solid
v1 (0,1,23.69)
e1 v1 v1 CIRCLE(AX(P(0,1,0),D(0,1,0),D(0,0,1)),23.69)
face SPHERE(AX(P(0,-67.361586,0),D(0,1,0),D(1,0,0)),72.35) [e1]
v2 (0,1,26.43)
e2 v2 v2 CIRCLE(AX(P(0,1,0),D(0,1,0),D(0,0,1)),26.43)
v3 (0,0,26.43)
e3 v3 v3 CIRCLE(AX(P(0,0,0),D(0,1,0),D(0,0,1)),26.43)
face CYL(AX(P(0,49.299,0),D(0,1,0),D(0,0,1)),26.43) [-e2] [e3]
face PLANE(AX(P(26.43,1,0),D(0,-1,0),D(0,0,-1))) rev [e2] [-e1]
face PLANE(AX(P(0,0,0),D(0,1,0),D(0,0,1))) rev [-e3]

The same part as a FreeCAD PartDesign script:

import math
import FreeCAD as App
import Part
import Sketcher

V = App.Vector

doc = App.newDocument("Part")
body = doc.addObject("PartDesign::Body", "Body")

# Sketch on XY plane
sketch1 = doc.addObject("Sketcher::SketchObject", "Sketch")
body.addObject(sketch1)
sketch1.AttachmentSupport = (doc.XY_Plane, [""])
sketch1.MapMode = "FlatFace"
sketch1.addGeometry(Part.LineSegment(V(26.4, 1, 0), V(23.7, 1, 0)), False)
sketch1.addGeometry(Part.ArcOfCircle(Part.Circle(V(0, -67.4, 0), V(0, 0, 1), 72.4), math.radians(70.89), math.radians(90)), False)
sketch1.addGeometry(Part.LineSegment(V(0, 5, 0), V(0, 0, 0)), False)
sketch1.addGeometry(Part.LineSegment(V(0, 0, 0), V(26.4, 0, 0)), False)
sketch1.addGeometry(Part.LineSegment(V(26.4, 0, 0), V(26.4, 1, 0)), False)
sketch1.addConstraint(Sketcher.Constraint("Coincident", 0, 2, 1, 1))
sketch1.addConstraint(Sketcher.Constraint("Coincident", 1, 2, 2, 1))
sketch1.addConstraint(Sketcher.Constraint("Coincident", 2, 2, 3, 1))
sketch1.addConstraint(Sketcher.Constraint("Coincident", 3, 2, 4, 1))
sketch1.addConstraint(Sketcher.Constraint("Coincident", 4, 2, 0, 1))
sketch1.addConstraint(Sketcher.Constraint("Horizontal", 0))
sketch1.addConstraint(Sketcher.Constraint("Vertical", 2))
sketch1.addConstraint(Sketcher.Constraint("Horizontal", 3))
sketch1.addConstraint(Sketcher.Constraint("Vertical", 4))
sketch1.addConstraint(Sketcher.Constraint("Coincident", 2, 2, -1, 1))
sketch1.addConstraint(Sketcher.Constraint("PointOnObject", 1, 3, -2))
sketch1.addConstraint(Sketcher.Constraint("DistanceY", 4, 1, 4, 2, 1.0))
sketch1.addConstraint(Sketcher.Constraint("Radius", 1, 72.35))
sketch1.addConstraint(Sketcher.Constraint("DistanceX", 0, 2, 0, 1, 2.74))
sketch1.addConstraint(Sketcher.Constraint("DistanceX", 3, 1, 3, 2, 26.43))
revolution = doc.addObject("PartDesign::Revolution", "Revolution")
body.addObject(revolution)
revolution.Profile = sketch1
revolution.ReferenceAxis = (sketch1, ["V_Axis"])
revolution.Angle = 360

doc.recompute()
